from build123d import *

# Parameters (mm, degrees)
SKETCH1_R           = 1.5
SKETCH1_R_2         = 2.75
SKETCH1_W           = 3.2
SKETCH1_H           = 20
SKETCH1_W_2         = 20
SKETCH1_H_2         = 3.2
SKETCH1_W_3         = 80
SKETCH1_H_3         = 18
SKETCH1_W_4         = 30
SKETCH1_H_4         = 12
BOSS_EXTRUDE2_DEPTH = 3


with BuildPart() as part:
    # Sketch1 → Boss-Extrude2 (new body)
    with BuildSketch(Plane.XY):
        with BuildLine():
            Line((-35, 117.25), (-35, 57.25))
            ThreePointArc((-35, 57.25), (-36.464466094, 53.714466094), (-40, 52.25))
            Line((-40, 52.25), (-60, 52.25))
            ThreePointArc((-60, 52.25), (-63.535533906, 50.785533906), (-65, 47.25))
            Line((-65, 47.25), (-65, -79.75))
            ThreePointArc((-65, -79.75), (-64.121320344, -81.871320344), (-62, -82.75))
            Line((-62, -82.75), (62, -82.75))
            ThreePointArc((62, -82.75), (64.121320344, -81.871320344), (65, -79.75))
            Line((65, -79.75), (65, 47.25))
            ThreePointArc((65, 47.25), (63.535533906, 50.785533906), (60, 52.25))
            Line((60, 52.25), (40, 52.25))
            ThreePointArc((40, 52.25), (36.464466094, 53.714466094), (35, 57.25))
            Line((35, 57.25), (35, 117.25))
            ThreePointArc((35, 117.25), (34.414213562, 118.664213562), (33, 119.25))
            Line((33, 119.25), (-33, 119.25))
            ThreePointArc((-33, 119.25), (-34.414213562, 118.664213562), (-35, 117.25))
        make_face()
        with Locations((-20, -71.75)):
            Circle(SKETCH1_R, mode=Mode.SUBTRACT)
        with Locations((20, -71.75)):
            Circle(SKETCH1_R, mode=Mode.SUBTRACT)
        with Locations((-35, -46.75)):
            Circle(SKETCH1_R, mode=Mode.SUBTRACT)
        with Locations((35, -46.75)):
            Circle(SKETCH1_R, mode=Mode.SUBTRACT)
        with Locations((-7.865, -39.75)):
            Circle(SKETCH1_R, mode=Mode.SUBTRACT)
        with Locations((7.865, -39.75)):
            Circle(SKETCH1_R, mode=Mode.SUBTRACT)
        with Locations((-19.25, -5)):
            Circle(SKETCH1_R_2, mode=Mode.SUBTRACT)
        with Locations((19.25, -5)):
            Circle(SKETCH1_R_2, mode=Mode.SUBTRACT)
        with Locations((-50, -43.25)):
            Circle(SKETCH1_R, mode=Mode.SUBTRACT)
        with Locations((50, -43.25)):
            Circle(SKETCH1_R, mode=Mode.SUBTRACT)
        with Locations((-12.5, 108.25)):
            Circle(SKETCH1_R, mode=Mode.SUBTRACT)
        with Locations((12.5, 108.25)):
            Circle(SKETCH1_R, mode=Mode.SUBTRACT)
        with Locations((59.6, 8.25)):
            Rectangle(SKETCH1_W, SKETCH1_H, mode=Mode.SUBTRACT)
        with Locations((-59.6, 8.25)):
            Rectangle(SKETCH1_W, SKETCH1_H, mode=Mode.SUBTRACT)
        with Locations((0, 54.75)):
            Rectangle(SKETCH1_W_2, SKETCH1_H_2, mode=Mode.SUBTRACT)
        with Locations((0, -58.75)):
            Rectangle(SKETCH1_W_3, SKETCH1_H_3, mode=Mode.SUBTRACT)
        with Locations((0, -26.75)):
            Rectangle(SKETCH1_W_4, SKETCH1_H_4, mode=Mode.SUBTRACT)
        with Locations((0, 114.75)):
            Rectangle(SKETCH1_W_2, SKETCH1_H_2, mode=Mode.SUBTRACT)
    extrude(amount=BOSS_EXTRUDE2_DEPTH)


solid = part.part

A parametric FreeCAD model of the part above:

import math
import FreeCAD as App
import Part
import Sketcher

V = App.Vector

doc = App.newDocument("Part")
body = doc.addObject("PartDesign::Body", "Body")

# Sketch on XY plane
sketch1 = body.newObject("Sketcher::SketchObject", "Sketch")
sketch1.AttachmentSupport = (doc.getObject("XY_Plane"), [""])
sketch1.MapMode = "FlatFace"
sketch1.addGeometry([
    Part.LineSegment(V(-35, 117.2, 0), V(-35, 57.2, 0)),  # 0
    Part.ArcOfCircle(Part.Circle(V(-40, 57.2, 0), V(0, 0, 1), 5), math.radians(-90), math.radians(0)),  # 1
    Part.LineSegment(V(-40, 52.2, 0), V(-60, 52.2, 0)),  # 2
    Part.ArcOfCircle(Part.Circle(V(-60, 47.2, 0), V(0, 0, 1), 5), math.radians(90), math.radians(180)),  # 3
    Part.LineSegment(V(-65, 47.2, 0), V(-65, -79.8, 0)),  # 4
    Part.ArcOfCircle(Part.Circle(V(-62, -79.8, 0), V(0, 0, 1), 3), math.radians(180), math.radians(270)),  # 5
    Part.LineSegment(V(-62, -82.8, 0), V(62, -82.8, 0)),  # 6
    Part.ArcOfCircle(Part.Circle(V(62, -79.8, 0), V(0, 0, 1), 3), math.radians(-90), math.radians(0)),  # 7
    Part.LineSegment(V(65, -79.8, 0), V(65, 47.2, 0)),  # 8
    Part.ArcOfCircle(Part.Circle(V(60, 47.2, 0), V(0, 0, 1), 5), math.radians(0), math.radians(90)),  # 9
    Part.LineSegment(V(60, 52.2, 0), V(40, 52.2, 0)),  # 10
    Part.ArcOfCircle(Part.Circle(V(40, 57.2, 0), V(0, 0, 1), 5), math.radians(180), math.radians(270)),  # 11
    Part.LineSegment(V(35, 57.2, 0), V(35, 117.2, 0)),  # 12
    Part.ArcOfCircle(Part.Circle(V(33, 117.2, 0), V(0, 0, 1), 2), math.radians(0), math.radians(90)),  # 13
    Part.LineSegment(V(33, 119.2, 0), V(-33, 119.2, 0)),  # 14
    Part.ArcOfCircle(Part.Circle(V(-33, 117.2, 0), V(0, 0, 1), 2), math.radians(90), math.radians(180)),  # 15
    Part.Circle(V(-50, -43.2, 0), V(0, 0, 1), 1.5),  # 16
    Part.Circle(V(-35, -46.8, 0), V(0, 0, 1), 1.5),  # 17
    Part.Circle(V(-20, -71.8, 0), V(0, 0, 1), 1.5),  # 18
    Part.Circle(V(-7.9, -39.8, 0), V(0, 0, 1), 1.5),  # 19
    Part.LineSegment(V(-58, -1.8, 0), V(-61.2, -1.8, 0)),  # 20
    Part.LineSegment(V(-61.2, -1.8, 0), V(-61.2, 18.2, 0)),  # 21
    Part.LineSegment(V(-61.2, 18.2, 0), V(-58, 18.2, 0)),  # 22
    Part.LineSegment(V(-58, 18.2, 0), V(-58, -1.8, 0)),  # 23
    Part.Circle(V(-19.2, -5, 0), V(0, 0, 1), 2.8),  # 24
    Part.LineSegment(V(40, -67.8, 0), V(-40, -67.8, 0)),  # 25
    Part.LineSegment(V(-40, -67.8, 0), V(-40, -49.8, 0)),  # 26
    Part.LineSegment(V(-40, -49.8, 0), V(40, -49.8, 0)),  # 27
    Part.LineSegment(V(40, -49.8, 0), V(40, -67.8, 0)),  # 28
    Part.Circle(V(20, -71.8, 0), V(0, 0, 1), 1.5),  # 29
    Part.Circle(V(7.9, -39.8, 0), V(0, 0, 1), 1.5),  # 30
    Part.LineSegment(V(15, -32.8, 0), V(-15, -32.8, 0)),  # 31
    Part.LineSegment(V(-15, -32.8, 0), V(-15, -20.8, 0)),  # 32
    Part.LineSegment(V(-15, -20.8, 0), V(15, -20.8, 0)),  # 33
    Part.LineSegment(V(15, -20.8, 0), V(15, -32.8, 0)),  # 34
    Part.Circle(V(35, -46.8, 0), V(0, 0, 1), 1.5),  # 35
    Part.Circle(V(50, -43.2, 0), V(0, 0, 1), 1.5),  # 36
    Part.Circle(V(19.2, -5, 0), V(0, 0, 1), 2.8),  # 37
    Part.LineSegment(V(61.2, -1.8, 0), V(58, -1.8, 0)),  # 38
    Part.LineSegment(V(58, -1.8, 0), V(58, 18.2, 0)),  # 39
    Part.LineSegment(V(58, 18.2, 0), V(61.2, 18.2, 0)),  # 40
    Part.LineSegment(V(61.2, 18.2, 0), V(61.2, -1.8, 0)),  # 41
    Part.Circle(V(-12.5, 108.2, 0), V(0, 0, 1), 1.5),  # 42
    Part.LineSegment(V(10, 53.1, 0), V(-10, 53.1, 0)),  # 43
    Part.LineSegment(V(-10, 53.1, 0), V(-10, 56.4, 0)),  # 44
    Part.LineSegment(V(-10, 56.4, 0), V(10, 56.4, 0)),  # 45
    Part.LineSegment(V(10, 56.4, 0), V(10, 53.1, 0)),  # 46
    Part.LineSegment(V(10, 113.2, 0), V(-10, 113.2, 0)),  # 47
    Part.LineSegment(V(-10, 113.2, 0), V(-10, 116.3, 0)),  # 48
    Part.LineSegment(V(-10, 116.3, 0), V(10, 116.3, 0)),  # 49
    Part.LineSegment(V(10, 116.3, 0), V(10, 113.2, 0)),  # 50
    Part.Circle(V(12.5, 108.2, 0), V(0, 0, 1), 1.5),  # 51
], False)
sketch1.addConstraint([
    Sketcher.Constraint("Tangent", 0, 2, 1, 2),
    Sketcher.Constraint("Tangent", 1, 1, 2, 1),
    Sketcher.Constraint("Tangent", 2, 2, 3, 1),
    Sketcher.Constraint("Tangent", 3, 2, 4, 1),
    Sketcher.Constraint("Tangent", 4, 2, 5, 1),
    Sketcher.Constraint("Tangent", 5, 2, 6, 1),
    Sketcher.Constraint("Tangent", 6, 2, 7, 1),
    Sketcher.Constraint("Tangent", 7, 2, 8, 1),
    Sketcher.Constraint("Tangent", 8, 2, 9, 1),
    Sketcher.Constraint("Tangent", 9, 2, 10, 1),
    Sketcher.Constraint("Tangent", 10, 2, 11, 2),
    Sketcher.Constraint("Tangent", 11, 1, 12, 1),
    Sketcher.Constraint("Tangent", 12, 2, 13, 1),
    Sketcher.Constraint("Tangent", 13, 2, 14, 1),
    Sketcher.Constraint("Tangent", 14, 2, 15, 1),
    Sketcher.Constraint("Tangent", 15, 2, 0, 1),
    Sketcher.Constraint("Coincident", 20, 2, 21, 1),
    Sketcher.Constraint("Coincident", 21, 2, 22, 1),
    Sketcher.Constraint("Coincident", 22, 2, 23, 1),
    Sketcher.Constraint("Coincident", 23, 2, 20, 1),
    Sketcher.Constraint("Coincident", 25, 2, 26, 1),
    Sketcher.Constraint("Coincident", 26, 2, 27, 1),
    Sketcher.Constraint("Coincident", 27, 2, 28, 1),
    Sketcher.Constraint("Coincident", 28, 2, 25, 1),
    Sketcher.Constraint("Coincident", 31, 2, 32, 1),
    Sketcher.Constraint("Coincident", 32, 2, 33, 1),
    Sketcher.Constraint("Coincident", 33, 2, 34, 1),
    Sketcher.Constraint("Coincident", 34, 2, 31, 1),
    Sketcher.Constraint("Coincident", 38, 2, 39, 1),
    Sketcher.Constraint("Coincident", 39, 2, 40, 1),
    Sketcher.Constraint("Coincident", 40, 2, 41, 1),
    Sketcher.Constraint("Coincident", 41, 2, 38, 1),
    Sketcher.Constraint("Coincident", 43, 2, 44, 1),
    Sketcher.Constraint("Coincident", 44, 2, 45, 1),
    Sketcher.Constraint("Coincident", 45, 2, 46, 1),
    Sketcher.Constraint("Coincident", 46, 2, 43, 1),
    Sketcher.Constraint("Coincident", 47, 2, 48, 1),
    Sketcher.Constraint("Coincident", 48, 2, 49, 1),
    Sketcher.Constraint("Coincident", 49, 2, 50, 1),
    Sketcher.Constraint("Coincident", 50, 2, 47, 1),
    Sketcher.Constraint("Vertical", 0),
    Sketcher.Constraint("Horizontal", 2),
    Sketcher.Constraint("Vertical", 4),
    Sketcher.Constraint("Horizontal", 6),
    Sketcher.Constraint("Vertical", 8),
    Sketcher.Constraint("Horizontal", 10),
    Sketcher.Constraint("Vertical", 12),
    Sketcher.Constraint("Horizontal", 14),
    Sketcher.Constraint("Horizontal", 20),
    Sketcher.Constraint("Vertical", 21),
    Sketcher.Constraint("Horizontal", 22),
    Sketcher.Constraint("Vertical", 23),
    Sketcher.Constraint("Horizontal", 25),
    Sketcher.Constraint("Vertical", 26),
    Sketcher.Constraint("Horizontal", 27),
    Sketcher.Constraint("Vertical", 28),
    Sketcher.Constraint("Horizontal", 31),
    Sketcher.Constraint("Vertical", 32),
    Sketcher.Constraint("Horizontal", 33),
    Sketcher.Constraint("Vertical", 34),
    Sketcher.Constraint("Horizontal", 38),
    Sketcher.Constraint("Vertical", 39),
    Sketcher.Constraint("Horizontal", 40),
    Sketcher.Constraint("Vertical", 41),
    Sketcher.Constraint("Horizontal", 43),
    Sketcher.Constraint("Vertical", 44),
    Sketcher.Constraint("Horizontal", 45),
    Sketcher.Constraint("Vertical", 46),
    Sketcher.Constraint("Horizontal", 47),
    Sketcher.Constraint("Vertical", 48),
    Sketcher.Constraint("Horizontal", 49),
    Sketcher.Constraint("Vertical", 50),
    Sketcher.Constraint("Equal", 1, 3),
    Sketcher.Constraint("Equal", 5, 7),
    Sketcher.Constraint("Equal", 3, 9),
    Sketcher.Constraint("Equal", 9, 11),
    Sketcher.Constraint("Equal", 13, 15),
    Sketcher.Constraint("Equal", 16, 17),
    Sketcher.Constraint("Equal", 17, 18),
    Sketcher.Constraint("Equal", 18, 19),
    Sketcher.Constraint("Equal", 19, 29),
    Sketcher.Constraint("Equal", 29, 30),
    Sketcher.Constraint("Equal", 30, 35),
    Sketcher.Constraint("Equal", 35, 36),
    Sketcher.Constraint("Equal", 24, 37),
    Sketcher.Constraint("Equal", 36, 42),
    Sketcher.Constraint("Equal", 42, 51),
    Sketcher.Constraint("Symmetric", 3, 3, 9, 3, -2),
    Sketcher.Constraint("Symmetric", 18, 3, 29, 3, -2),
    Sketcher.Constraint("Symmetric", 19, 3, 30, 3, -2),
    Sketcher.Constraint("Symmetric", 17, 3, 35, 3, -2),
    Sketcher.Constraint("Symmetric", 16, 3, 36, 3, -2),
    Sketcher.Constraint("Symmetric", 24, 3, 37, 3, -2),
    Sketcher.Constraint("Symmetric", 42, 3, 51, 3, -2),
    Sketcher.Constraint("Symmetric", 23, 2, 38, 2, -2),
    Sketcher.Constraint("Symmetric", 21, 2, 40, 2, -2),
    Sketcher.Constraint("Vertical", 17, 3, 0, 2),
    Sketcher.Constraint("Vertical", 35, 3, 11, 1),
    Sketcher.Constraint("Vertical", 1, 1, 25, 2),
    Sketcher.Constraint("Vertical", 10, 2, 27, 2),
    Sketcher.Constraint("Vertical", 44, 2, 47, 2),
    Sketcher.Constraint("Vertical", 46, 2, 49, 2),
    Sketcher.Constraint("Equal", 10, 43),
    Sketcher.Constraint("Equal", 49, 21),
    Sketcher.Constraint("Equal", 40, 44),
    Sketcher.Constraint("Equal", 46, 48),
    Sketcher.Constraint("Diameter", 16, 3.0),
    Sketcher.Constraint("Radius", 1, 5.0),
    Sketcher.Constraint("Radius", 5, 3.0),
    Sketcher.Constraint("Radius", 13, 2.0),
    Sketcher.Constraint("Diameter", 24, 5.5),
    Sketcher.Constraint("DistanceX", 2, 2, 2, 1, 20.0),
    Sketcher.Constraint("DistanceX", 6, 1, 6, 2, 124.0),
    Sketcher.Constraint("DistanceX", 31, 2, 31, 1, 30.0),
    Sketcher.Constraint("DistanceY", 0, 2, 0, 1, 60.0),
    Sketcher.Constraint("DistanceY", 4, 2, 4, 1, 127.0),
    Sketcher.Constraint("DistanceY", 26, 1, 26, 2, 18.0),
    Sketcher.Constraint("DistanceY", 32, 1, 32, 2, 12.0),
    Sketcher.Constraint("DistanceX", 20, 2, 20, 1, 3.2),
    Sketcher.Constraint("DistanceX", 16, 3, -1, 1, 50.0),
    Sketcher.Constraint("DistanceX", 18, 3, -1, 1, 20.0),
    Sketcher.Constraint("DistanceY", 24, 3, -1, 1, 5.0),
    Sketcher.Constraint("DistanceX", 22, 2, -1, 1, 58.0),
    Sketcher.Constraint("DistanceX", 31, 2, -1, 1, 15.0),
    Sketcher.Constraint("DistanceX", 43, 2, -1, 1, 10.0),
    Sketcher.Constraint("DistanceY", 5, 3, 17, 3, 33.0),
    Sketcher.Constraint("DistanceY", 18, 3, 17, 3, 25.0),
    Sketcher.Constraint("DistanceY", 17, 3, 19, 3, 7.0),
    Sketcher.Constraint("DistanceY", 42, 3, 15, 3, 9.0),
    Sketcher.Constraint("DistanceX", 42, 3, 51, 3, 25.0),
    Sketcher.Constraint("DistanceY", 20, 2, 3, 3, 49.0),
    Sketcher.Constraint("DistanceY", 18, 3, 25, 2, 4.0),
    Sketcher.Constraint("DistanceY", 19, 3, 31, 2, 7.0),
    Sketcher.Constraint("DistanceY", 5, 3, 16, 3, 36.5),
    Sketcher.Constraint("DistanceX", 24, 3, 37, 3, 38.5),
    Sketcher.Constraint("DistanceY", 43, 2, 0, 2, 4.1),
    Sketcher.Constraint("DistanceY", 42, 3, 47, 2, 4.9),
    Sketcher.Constraint("DistanceY", -1, 1, 1, 3, 57.25),
    Sketcher.Constraint("DistanceX", 19, 3, 30, 3, 15.73),
])
pad1 = body.newObject("PartDesign::Pad", "Pad")
pad1.Profile = sketch1
pad1.Length = 3

doc.recompute()
